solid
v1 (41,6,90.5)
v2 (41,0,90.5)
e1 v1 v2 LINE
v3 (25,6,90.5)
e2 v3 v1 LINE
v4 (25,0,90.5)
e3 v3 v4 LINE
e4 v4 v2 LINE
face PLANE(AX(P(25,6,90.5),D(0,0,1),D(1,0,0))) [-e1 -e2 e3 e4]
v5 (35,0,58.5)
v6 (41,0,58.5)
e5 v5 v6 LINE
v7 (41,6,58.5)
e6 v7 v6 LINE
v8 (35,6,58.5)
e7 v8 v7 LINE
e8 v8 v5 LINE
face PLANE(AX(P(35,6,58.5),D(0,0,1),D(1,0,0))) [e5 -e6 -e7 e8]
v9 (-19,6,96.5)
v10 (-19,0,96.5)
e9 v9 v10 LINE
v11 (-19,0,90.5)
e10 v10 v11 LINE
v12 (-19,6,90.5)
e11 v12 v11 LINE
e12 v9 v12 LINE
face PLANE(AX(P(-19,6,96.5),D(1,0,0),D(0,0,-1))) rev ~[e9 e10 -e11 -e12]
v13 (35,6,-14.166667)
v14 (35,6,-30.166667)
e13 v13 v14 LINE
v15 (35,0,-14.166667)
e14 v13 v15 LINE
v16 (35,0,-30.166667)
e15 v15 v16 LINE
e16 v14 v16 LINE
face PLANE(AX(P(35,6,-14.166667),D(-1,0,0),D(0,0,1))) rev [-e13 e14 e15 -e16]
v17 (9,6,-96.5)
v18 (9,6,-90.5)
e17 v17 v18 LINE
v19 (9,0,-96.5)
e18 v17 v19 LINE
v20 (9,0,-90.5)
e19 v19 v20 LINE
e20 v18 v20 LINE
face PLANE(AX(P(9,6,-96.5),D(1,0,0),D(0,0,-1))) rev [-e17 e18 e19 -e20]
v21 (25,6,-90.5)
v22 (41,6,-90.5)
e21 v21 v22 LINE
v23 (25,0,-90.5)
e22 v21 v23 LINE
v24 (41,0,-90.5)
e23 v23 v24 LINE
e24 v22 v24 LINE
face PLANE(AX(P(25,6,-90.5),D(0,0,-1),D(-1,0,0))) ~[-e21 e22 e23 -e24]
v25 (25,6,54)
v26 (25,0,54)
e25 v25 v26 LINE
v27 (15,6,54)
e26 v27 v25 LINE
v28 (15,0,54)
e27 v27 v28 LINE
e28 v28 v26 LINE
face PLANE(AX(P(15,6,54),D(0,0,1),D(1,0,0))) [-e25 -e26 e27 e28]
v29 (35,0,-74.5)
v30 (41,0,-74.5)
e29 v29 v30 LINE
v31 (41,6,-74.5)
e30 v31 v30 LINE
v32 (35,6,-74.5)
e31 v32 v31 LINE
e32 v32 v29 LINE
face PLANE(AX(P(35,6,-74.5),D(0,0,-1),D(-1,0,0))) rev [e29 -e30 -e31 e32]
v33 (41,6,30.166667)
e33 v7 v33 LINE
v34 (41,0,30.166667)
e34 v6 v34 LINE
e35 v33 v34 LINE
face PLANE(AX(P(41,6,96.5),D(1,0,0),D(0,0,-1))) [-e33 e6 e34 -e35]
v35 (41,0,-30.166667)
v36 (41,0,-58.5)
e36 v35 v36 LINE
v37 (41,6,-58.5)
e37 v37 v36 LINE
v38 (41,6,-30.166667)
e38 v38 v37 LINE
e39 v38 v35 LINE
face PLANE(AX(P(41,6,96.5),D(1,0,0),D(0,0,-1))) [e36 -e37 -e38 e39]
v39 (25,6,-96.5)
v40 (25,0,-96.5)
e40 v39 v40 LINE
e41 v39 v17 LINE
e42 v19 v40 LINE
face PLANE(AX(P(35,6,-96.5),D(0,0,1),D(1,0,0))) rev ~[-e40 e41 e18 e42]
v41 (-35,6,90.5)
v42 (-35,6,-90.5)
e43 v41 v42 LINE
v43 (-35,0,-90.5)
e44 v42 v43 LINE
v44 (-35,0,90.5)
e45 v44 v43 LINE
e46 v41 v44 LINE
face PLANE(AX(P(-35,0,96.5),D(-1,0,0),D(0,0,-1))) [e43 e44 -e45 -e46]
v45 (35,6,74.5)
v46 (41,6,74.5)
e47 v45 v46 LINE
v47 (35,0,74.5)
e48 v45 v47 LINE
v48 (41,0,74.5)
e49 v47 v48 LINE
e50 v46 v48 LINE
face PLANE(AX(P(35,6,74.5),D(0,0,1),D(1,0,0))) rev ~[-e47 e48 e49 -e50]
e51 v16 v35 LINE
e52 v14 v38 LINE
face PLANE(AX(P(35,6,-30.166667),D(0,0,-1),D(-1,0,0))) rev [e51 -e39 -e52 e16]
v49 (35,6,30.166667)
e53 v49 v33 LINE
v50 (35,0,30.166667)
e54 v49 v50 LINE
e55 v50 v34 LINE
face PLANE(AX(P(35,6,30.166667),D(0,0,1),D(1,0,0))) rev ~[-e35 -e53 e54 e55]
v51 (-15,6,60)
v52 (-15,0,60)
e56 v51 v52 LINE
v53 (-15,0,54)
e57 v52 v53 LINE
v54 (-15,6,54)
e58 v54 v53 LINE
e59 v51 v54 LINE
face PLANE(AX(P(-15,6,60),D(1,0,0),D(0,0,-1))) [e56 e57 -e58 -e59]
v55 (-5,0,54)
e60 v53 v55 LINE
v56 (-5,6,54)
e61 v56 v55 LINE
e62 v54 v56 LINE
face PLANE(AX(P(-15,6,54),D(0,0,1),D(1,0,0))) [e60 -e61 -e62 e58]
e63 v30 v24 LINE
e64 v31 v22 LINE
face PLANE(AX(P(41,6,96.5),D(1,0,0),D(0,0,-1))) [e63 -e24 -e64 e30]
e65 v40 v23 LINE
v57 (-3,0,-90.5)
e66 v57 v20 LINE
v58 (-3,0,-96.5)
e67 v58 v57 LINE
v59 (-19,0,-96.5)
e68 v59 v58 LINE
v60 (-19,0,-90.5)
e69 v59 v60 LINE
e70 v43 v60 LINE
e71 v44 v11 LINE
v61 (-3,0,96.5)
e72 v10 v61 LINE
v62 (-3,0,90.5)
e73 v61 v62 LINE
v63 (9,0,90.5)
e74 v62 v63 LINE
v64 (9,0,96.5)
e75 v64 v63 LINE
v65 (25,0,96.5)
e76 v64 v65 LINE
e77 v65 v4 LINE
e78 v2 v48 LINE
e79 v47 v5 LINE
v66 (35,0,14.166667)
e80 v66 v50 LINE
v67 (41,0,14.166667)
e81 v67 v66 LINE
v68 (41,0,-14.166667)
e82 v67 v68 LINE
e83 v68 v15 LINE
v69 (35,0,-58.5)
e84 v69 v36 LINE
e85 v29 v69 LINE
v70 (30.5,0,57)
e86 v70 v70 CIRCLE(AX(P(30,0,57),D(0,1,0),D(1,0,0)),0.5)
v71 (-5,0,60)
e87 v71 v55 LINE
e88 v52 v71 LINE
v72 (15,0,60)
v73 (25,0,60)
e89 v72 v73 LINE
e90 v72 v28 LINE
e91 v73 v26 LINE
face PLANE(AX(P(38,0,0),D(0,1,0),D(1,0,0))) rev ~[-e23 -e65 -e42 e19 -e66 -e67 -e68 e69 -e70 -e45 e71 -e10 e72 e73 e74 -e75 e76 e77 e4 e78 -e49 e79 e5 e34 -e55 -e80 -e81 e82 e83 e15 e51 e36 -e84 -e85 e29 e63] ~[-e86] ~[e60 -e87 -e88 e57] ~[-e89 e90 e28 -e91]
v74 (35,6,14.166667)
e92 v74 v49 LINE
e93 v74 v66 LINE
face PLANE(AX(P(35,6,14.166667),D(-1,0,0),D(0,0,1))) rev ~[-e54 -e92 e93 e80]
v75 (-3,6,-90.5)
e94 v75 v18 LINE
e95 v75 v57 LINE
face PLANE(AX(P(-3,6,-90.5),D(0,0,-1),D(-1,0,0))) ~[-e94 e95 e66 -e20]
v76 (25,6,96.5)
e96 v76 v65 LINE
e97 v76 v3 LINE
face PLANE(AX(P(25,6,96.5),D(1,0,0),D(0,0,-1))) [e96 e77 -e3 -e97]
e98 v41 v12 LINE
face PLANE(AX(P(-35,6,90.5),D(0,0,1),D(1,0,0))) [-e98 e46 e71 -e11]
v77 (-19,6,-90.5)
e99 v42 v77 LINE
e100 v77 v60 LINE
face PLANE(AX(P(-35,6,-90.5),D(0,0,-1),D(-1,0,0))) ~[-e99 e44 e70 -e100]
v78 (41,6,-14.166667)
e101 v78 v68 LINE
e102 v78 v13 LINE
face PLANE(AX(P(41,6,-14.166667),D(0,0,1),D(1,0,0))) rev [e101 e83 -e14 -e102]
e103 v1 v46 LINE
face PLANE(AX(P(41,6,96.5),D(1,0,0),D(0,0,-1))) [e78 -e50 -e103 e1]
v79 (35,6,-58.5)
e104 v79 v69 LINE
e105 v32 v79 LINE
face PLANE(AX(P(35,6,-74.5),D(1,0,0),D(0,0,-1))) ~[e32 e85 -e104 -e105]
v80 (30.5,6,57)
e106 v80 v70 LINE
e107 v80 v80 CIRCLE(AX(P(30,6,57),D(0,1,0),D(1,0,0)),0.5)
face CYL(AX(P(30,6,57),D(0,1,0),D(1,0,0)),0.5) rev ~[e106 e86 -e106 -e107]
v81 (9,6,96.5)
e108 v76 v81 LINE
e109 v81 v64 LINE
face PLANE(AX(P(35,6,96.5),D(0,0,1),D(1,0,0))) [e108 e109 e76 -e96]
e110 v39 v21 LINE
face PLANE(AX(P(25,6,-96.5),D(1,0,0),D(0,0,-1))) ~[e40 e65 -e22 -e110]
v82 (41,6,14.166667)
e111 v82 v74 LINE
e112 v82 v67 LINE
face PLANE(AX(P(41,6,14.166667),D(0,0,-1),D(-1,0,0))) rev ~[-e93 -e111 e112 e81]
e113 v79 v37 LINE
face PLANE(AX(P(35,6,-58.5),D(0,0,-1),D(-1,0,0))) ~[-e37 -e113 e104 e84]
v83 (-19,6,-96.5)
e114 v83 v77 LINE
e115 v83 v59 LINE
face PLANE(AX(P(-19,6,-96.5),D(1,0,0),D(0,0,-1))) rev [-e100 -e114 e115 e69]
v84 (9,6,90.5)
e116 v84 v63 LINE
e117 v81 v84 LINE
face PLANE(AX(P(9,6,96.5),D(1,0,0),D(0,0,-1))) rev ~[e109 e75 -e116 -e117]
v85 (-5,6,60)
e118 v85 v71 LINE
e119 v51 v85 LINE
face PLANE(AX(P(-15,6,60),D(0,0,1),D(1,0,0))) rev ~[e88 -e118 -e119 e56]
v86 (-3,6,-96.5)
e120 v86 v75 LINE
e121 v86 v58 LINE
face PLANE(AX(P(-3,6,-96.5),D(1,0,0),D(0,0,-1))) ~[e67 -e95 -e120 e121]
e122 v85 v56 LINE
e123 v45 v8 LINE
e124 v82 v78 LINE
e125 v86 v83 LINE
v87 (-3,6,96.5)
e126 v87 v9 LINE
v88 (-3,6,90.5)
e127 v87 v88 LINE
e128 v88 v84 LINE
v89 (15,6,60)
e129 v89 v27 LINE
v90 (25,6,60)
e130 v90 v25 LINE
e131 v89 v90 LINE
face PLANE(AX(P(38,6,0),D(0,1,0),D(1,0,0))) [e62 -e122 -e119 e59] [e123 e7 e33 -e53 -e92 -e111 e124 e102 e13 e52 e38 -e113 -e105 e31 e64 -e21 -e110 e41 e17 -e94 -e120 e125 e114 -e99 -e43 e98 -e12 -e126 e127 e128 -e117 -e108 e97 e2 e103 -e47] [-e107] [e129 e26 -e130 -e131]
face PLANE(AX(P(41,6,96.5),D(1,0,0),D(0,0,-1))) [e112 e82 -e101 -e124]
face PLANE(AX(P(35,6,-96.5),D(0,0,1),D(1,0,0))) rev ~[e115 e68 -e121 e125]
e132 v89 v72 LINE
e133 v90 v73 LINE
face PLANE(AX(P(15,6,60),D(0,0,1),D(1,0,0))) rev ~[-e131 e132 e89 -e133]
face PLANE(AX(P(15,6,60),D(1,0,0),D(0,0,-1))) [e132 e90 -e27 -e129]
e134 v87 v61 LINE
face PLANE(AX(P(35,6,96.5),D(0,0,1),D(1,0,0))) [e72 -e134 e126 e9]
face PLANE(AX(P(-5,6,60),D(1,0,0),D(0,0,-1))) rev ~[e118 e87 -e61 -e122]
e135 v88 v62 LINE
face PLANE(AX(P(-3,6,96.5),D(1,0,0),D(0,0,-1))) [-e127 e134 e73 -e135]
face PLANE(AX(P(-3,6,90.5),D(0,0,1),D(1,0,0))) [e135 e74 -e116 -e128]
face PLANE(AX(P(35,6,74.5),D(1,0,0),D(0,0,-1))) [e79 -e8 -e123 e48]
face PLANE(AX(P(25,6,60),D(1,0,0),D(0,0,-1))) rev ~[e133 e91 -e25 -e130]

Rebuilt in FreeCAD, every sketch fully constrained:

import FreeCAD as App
import Part
import Sketcher
from FreeCAD import Vector

doc = App.newDocument("Part")
body = doc.addObject("PartDesign::Body", "Body")

# Sketch on XZ plane
sketch1 = doc.addObject("Sketcher::SketchObject", "Sketch")
body.addObject(sketch1)
sketch1.AttachmentSupport = (doc.XZ_Plane, [""])
sketch1.MapMode = "FlatFace"
sketch1.addGeometry(Part.LineSegment(Vector(35, 96, 0), Vector(35, -96, 0)), False)
sketch1.addGeometry(Part.LineSegment(Vector(35, -96, 0), Vector(-35, -96, 0)), False)
sketch1.addGeometry(Part.LineSegment(Vector(-35, -96, 0), Vector(-35, 96, 0)), False)
sketch1.addGeometry(Part.LineSegment(Vector(-35, 96, 0), Vector(35, 96, 0)), False)
sketch1.addConstraint(Sketcher.Constraint("Coincident", 0, 2, 1, 1))
sketch1.addConstraint(Sketcher.Constraint("Coincident", 1, 2, 2, 1))
sketch1.addConstraint(Sketcher.Constraint("Coincident", 2, 2, 3, 1))
sketch1.addConstraint(Sketcher.Constraint("Coincident", 3, 2, 0, 1))
sketch1.addConstraint(Sketcher.Constraint("Vertical", 0))
sketch1.addConstraint(Sketcher.Constraint("Horizontal", 1))
sketch1.addConstraint(Sketcher.Constraint("Vertical", 2))
sketch1.addConstraint(Sketcher.Constraint("Horizontal", 3))
sketch1.addConstraint(Sketcher.Constraint("Symmetric", 0, 2, 2, 2, -1, 1))
sketch1.addConstraint(Sketcher.Constraint("DistanceX", 1, 2, 1, 1, 70.0))
sketch1.addConstraint(Sketcher.Constraint("DistanceY", 0, 2, 0, 1, 193.0))
pad1 = doc.addObject("PartDesign::Pad", "Pad")
body.addObject(pad1)
pad1.Profile = sketch1
pad1.Length = 6
pad1.Reversed = True

# Sketch on XZ plane
sketch2 = doc.addObject("Sketcher::SketchObject", "Sketch001")
body.addObject(sketch2)
sketch2.AttachmentSupport = (doc.XZ_Plane, [""])
sketch2.MapMode = "FlatFace"
sketch2.AttachmentOffset = App.Placement(Vector(0, 0, -6), App.Rotation())
sketch2.addGeometry(Part.LineSegment(Vector(35, -96, 0), Vector(35, 96, 0)), False)
sketch2.addGeometry(Part.LineSegment(Vector(35, 96, 0), Vector(41, 96, 0)), False)
sketch2.addGeometry(Part.LineSegment(Vector(41, 96, 0), Vector(41, -96, 0)), False)
sketch2.addGeometry(Part.LineSegment(Vector(41, -96, 0), Vector(35, -96, 0)), False)
sketch2.addConstraint(Sketcher.Constraint("Coincident", 0, 2, 1, 1))
sketch2.addConstraint(Sketcher.Constraint("Coincident", 1, 2, 2, 1))
sketch2.addConstraint(Sketcher.Constraint("Coincident", 2, 2, 3, 1))
sketch2.addConstraint(Sketcher.Constraint("Coincident", 3, 2, 0, 1))
sketch2.addConstraint(Sketcher.Constraint("Vertical", 0))
sketch2.addConstraint(Sketcher.Constraint("Horizontal", 1))
sketch2.addConstraint(Sketcher.Constraint("Vertical", 2))
sketch2.addConstraint(Sketcher.Constraint("Horizontal", 3))
sketch2.addConstraint(Sketcher.Constraint("DistanceX", 1, 1, 1, 2, 6.0))
sketch2.addConstraint(Sketcher.Constraint("DistanceY", 0, 1, 0, 2, 193.0))
sketch2.addConstraint(Sketcher.Constraint("DistanceX", -1, 1, 0, 2, 35.0))
sketch2.addConstraint(Sketcher.Constraint("DistanceY", -1, 1, 0, 2, 96.5))
pad2 = doc.addObject("PartDesign::Pad", "Pad001")
body.addObject(pad2)
pad2.Profile = sketch2
pad2.Length = 6

# Sketch on XZ plane
sketch3 = doc.addObject("Sketcher::SketchObject", "Sketch002")
body.addObject(sketch3)
sketch3.AttachmentSupport = (doc.XZ_Plane, [""])
sketch3.MapMode = "FlatFace"
sketch3.AttachmentOffset = App.Placement(Vector(0, 0, -6), App.Rotation())
sketch3.addGeometry(Part.LineSegment(Vector(35, 58, 0), Vector(35, 74, 0)), False)
sketch3.addGeometry(Part.LineSegment(Vector(35, 74, 0), Vector(41, 74, 0)), False)
sketch3.addGeometry(Part.LineSegment(Vector(41, 74, 0), Vector(41, 58, 0)), False)
sketch3.addGeometry(Part.LineSegment(Vector(41, 58, 0), Vector(35, 58, 0)), False)
sketch3.addGeometry(Part.LineSegment(Vector(35, 30, 0), Vector(41, 30, 0)), False)
sketch3.addGeometry(Part.LineSegment(Vector(41, 30, 0), Vector(41, 14, 0)), False)
sketch3.addGeometry(Part.LineSegment(Vector(41, 14, 0), Vector(35, 14, 0)), False)
sketch3.addGeometry(Part.LineSegment(Vector(35, 14, 0), Vector(35, 30, 0)), False)
sketch3.addGeometry(Part.LineSegment(Vector(25, 90, 0), Vector(25, 96, 0)), False)
sketch3.addGeometry(Part.LineSegment(Vector(25, 96, 0), Vector(41, 96, 0)), False)
sketch3.addGeometry(Part.LineSegment(Vector(41, 96, 0), Vector(41, 90, 0)), False)
sketch3.addGeometry(Part.LineSegment(Vector(41, 90, 0), Vector(25, 90, 0)), False)
sketch3.addGeometry(Part.LineSegment(Vector(-35, 90, 0), Vector(-35, 96, 0)), False)
sketch3.addGeometry(Part.LineSegment(Vector(-35, 96, 0), Vector(-19, 96, 0)), False)
sketch3.addGeometry(Part.LineSegment(Vector(-19, 96, 0), Vector(-19, 90, 0)), False)
sketch3.addGeometry(Part.LineSegment(Vector(-19, 90, 0), Vector(-35, 90, 0)), False)
sketch3.addGeometry(Part.LineSegment(Vector(-3, 90, 0), Vector(-3, 96, 0)), False)
sketch3.addGeometry(Part.LineSegment(Vector(-3, 96, 0), Vector(9, 96, 0)), False)
sketch3.addGeometry(Part.LineSegment(Vector(9, 96, 0), Vector(9, 90, 0)), False)
sketch3.addGeometry(Part.LineSegment(Vector(9, 90, 0), Vector(-3, 90, 0)), False)
sketch3.addConstraint(Sketcher.Constraint("Coincident", 0, 2, 1, 1))
sketch3.addConstraint(Sketcher.Constraint("Coincident", 1, 2, 2, 1))
sketch3.addConstraint(Sketcher.Constraint("Coincident", 2, 2, 3, 1))
sketch3.addConstraint(Sketcher.Constraint("Coincident", 3, 2, 0, 1))
sketch3.addConstraint(Sketcher.Constraint("Coincident", 4, 2, 5, 1))
sketch3.addConstraint(Sketcher.Constraint("Coincident", 5, 2, 6, 1))
sketch3.addConstraint(Sketcher.Constraint("Coincident", 6, 2, 7, 1))
sketch3.addConstraint(Sketcher.Constraint("Coincident", 7, 2, 4, 1))
sketch3.addConstraint(Sketcher.Constraint("Coincident", 8, 2, 9, 1))
sketch3.addConstraint(Sketcher.Constraint("Coincident", 9, 2, 10, 1))
sketch3.addConstraint(Sketcher.Constraint("Coincident", 10, 2, 11, 1))
sketch3.addConstraint(Sketcher.Constraint("Coincident", 11, 2, 8, 1))
sketch3.addConstraint(Sketcher.Constraint("Coincident", 12, 2, 13, 1))
sketch3.addConstraint(Sketcher.Constraint("Coincident", 13, 2, 14, 1))
sketch3.addConstraint(Sketcher.Constraint("Coincident", 14, 2, 15, 1))
sketch3.addConstraint(Sketcher.Constraint("Coincident", 15, 2, 12, 1))
sketch3.addConstraint(Sketcher.Constraint("Coincident", 16, 2, 17, 1))
sketch3.addConstraint(Sketcher.Constraint("Coincident", 17, 2, 18, 1))
sketch3.addConstraint(Sketcher.Constraint("Coincident", 18, 2, 19, 1))
sketch3.addConstraint(Sketcher.Constraint("Coincident", 19, 2, 16, 1))
sketch3.addConstraint(Sketcher.Constraint("Vertical", 0))
sketch3.addConstraint(Sketcher.Constraint("Horizontal", 1))
sketch3.addConstraint(Sketcher.Constraint("Vertical", 2))
sketch3.addConstraint(Sketcher.Constraint("Horizontal", 3))
sketch3.addConstraint(Sketcher.Constraint("Horizontal", 4))
sketch3.addConstraint(Sketcher.Constraint("Vertical", 5))
sketch3.addConstraint(Sketcher.Constraint("Horizontal", 6))
sketch3.addConstraint(Sketcher.Constraint("Vertical", 7))
sketch3.addConstraint(Sketcher.Constraint("Vertical", 8))
sketch3.addConstraint(Sketcher.Constraint("Horizontal", 9))
sketch3.addConstraint(Sketcher.Constraint("Vertical", 10))
sketch3.addConstraint(Sketcher.Constraint("Horizontal", 11))
sketch3.addConstraint(Sketcher.Constraint("Vertical", 12))
sketch3.addConstraint(Sketcher.Constraint("Horizontal", 13))
sketch3.addConstraint(Sketcher.Constraint("Vertical", 14))
sketch3.addConstraint(Sketcher.Constraint("Horizontal", 15))
sketch3.addConstraint(Sketcher.Constraint("Vertical", 16))
sketch3.addConstraint(Sketcher.Constraint("Horizontal", 17))
sketch3.addConstraint(Sketcher.Constraint("Vertical", 18))
sketch3.addConstraint(Sketcher.Constraint("Horizontal", 19))
sketch3.addConstraint(Sketcher.Constraint("Horizontal", 9, 2, 12, 2))
sketch3.addConstraint(Sketcher.Constraint("Horizontal", 11, 2, 14, 2))
sketch3.addConstraint(Sketcher.Constraint("Horizontal", 13, 2, 16, 2))
sketch3.addConstraint(Sketcher.Constraint("Horizontal", 15, 2, 18, 2))
sketch3.addConstraint(Sketcher.Constraint("Vertical", 2, 2, 4, 2))
sketch3.addConstraint(Sketcher.Constraint("Vertical", 3, 2, 6, 2))
sketch3.addConstraint(Sketcher.Constraint("Vertical", 5, 2, 9, 2))
sketch3.addConstraint(Sketcher.Constraint("Equal", 11, 13))
sketch3.addConstraint(Sketcher.Constraint("Equal", 15, 0))
sketch3.addConstraint(Sketcher.Constraint("Equal", 2, 5))
sketch3.addConstraint(Sketcher.Constraint("Equal", 6, 8))
sketch3.addConstraint(Sketcher.Constraint("DistanceX", 1, 1, 1, 2, 6.0))
sketch3.addConstraint(Sketcher.Constraint("DistanceX", 9, 1, 9, 2, 16.0))
sketch3.addConstraint(Sketcher.Constraint("DistanceX", 17, 1, 17, 2, 12.0))
sketch3.addConstraint(Sketcher.Constraint("DistanceX", -1, 1, 0, 2, 35.0))
sketch3.addConstraint(Sketcher.Constraint("DistanceX", 12, 2, -1, 1, 35.0))
sketch3.addConstraint(Sketcher.Constraint("DistanceX", 16, 2, -1, 1, 3.0))
sketch3.addConstraint(Sketcher.Constraint("DistanceY", 0, 2, 8, 2, 22.0))
sketch3.addConstraint(Sketcher.Constraint("DistanceY", -1, 1, 0, 2, 74.5))
sketch3.addConstraint(Sketcher.Constraint("DistanceY", -1, 1, 4, 2, 30.166667))
pocket1 = doc.addObject("PartDesign::Pocket", "Pocket")
body.addObject(pocket1)
pocket1.Profile = sketch3
pocket1.Type = "ThroughAll"
pocket1.Reversed = True
doc.recompute()

mirrored = doc.addObject("PartDesign::Mirrored", "Mirrored")
body.addObject(mirrored)
mirrored.Originals = [pocket1]
mirrored.MirrorPlane = (doc.XY_Plane, [""])
body.Tip = mirrored

# Sketch on XZ plane
sketch4 = doc.addObject("Sketcher::SketchObject", "Sketch003")
body.addObject(sketch4)
sketch4.AttachmentSupport = (doc.XZ_Plane, [""])
sketch4.MapMode = "FlatFace"
sketch4.AttachmentOffset = App.Placement(Vector(0, 0, -6), App.Rotation())
sketch4.addGeometry(Part.Circle(Vector(30, 57, 0), Vector(0, 0, 1), 0.5), False)
sketch4.addGeometry(Part.LineSegment(Vector(15, 54, 0), Vector(15, 60, 0)), False)
sketch4.addGeometry(Part.LineSegment(Vector(15, 60, 0), Vector(25, 60, 0)), False)
sketch4.addGeometry(Part.LineSegment(Vector(25, 60, 0), Vector(25, 54, 0)), False)
sketch4.addGeometry(Part.LineSegment(Vector(25, 54, 0), Vector(15, 54, 0)), False)
sketch4.addGeometry(Part.LineSegment(Vector(-15, 54, 0), Vector(-15, 60, 0)), False)
sketch4.addGeometry(Part.LineSegment(Vector(-15, 60, 0), Vector(-5, 60, 0)), False)
sketch4.addGeometry(Part.LineSegment(Vector(-5, 60, 0), Vector(-5, 54, 0)), False)
sketch4.addGeometry(Part.LineSegment(Vector(-5, 54, 0), Vector(-15, 54, 0)), False)
sketch4.addConstraint(Sketcher.Constraint("Coincident", 1, 2, 2, 1))
sketch4.addConstraint(Sketcher.Constraint("Coincident", 2, 2, 3, 1))
sketch4.addConstraint(Sketcher.Constraint("Coincident", 3, 2, 4, 1))
sketch4.addConstraint(Sketcher.Constraint("Coincident", 4, 2, 1, 1))
sketch4.addConstraint(Sketcher.Constraint("Coincident", 5, 2, 6, 1))
sketch4.addConstraint(Sketcher.Constraint("Coincident", 6, 2, 7, 1))
sketch4.addConstraint(Sketcher.Constraint("Coincident", 7, 2, 8, 1))
sketch4.addConstraint(Sketcher.Constraint("Coincident", 8, 2, 5, 1))
sketch4.addConstraint(Sketcher.Constraint("Vertical", 1))
sketch4.addConstraint(Sketcher.Constraint("Horizontal", 2))
sketch4.addConstraint(Sketcher.Constraint("Vertical", 3))
sketch4.addConstraint(Sketcher.Constraint("Horizontal", 4))
sketch4.addConstraint(Sketcher.Constraint("Vertical", 5))
sketch4.addConstraint(Sketcher.Constraint("Horizontal", 6))
sketch4.addConstraint(Sketcher.Constraint("Vertical", 7))
sketch4.addConstraint(Sketcher.Constraint("Horizontal", 8))
sketch4.addConstraint(Sketcher.Constraint("Symmetric", 1, 2, 5, 2, -2))
sketch4.addConstraint(Sketcher.Constraint("Horizontal", 4, 2, 7, 2))
sketch4.addConstraint(Sketcher.Constraint("Equal", 4, 6))
sketch4.addConstraint(Sketcher.Constraint("Diameter", 0, 1.0))
sketch4.addConstraint(Sketcher.Constraint("DistanceX", 2, 1, 2, 2, 10.0))
sketch4.addConstraint(Sketcher.Constraint("DistanceY", 1, 1, 1, 2, 6.0))
sketch4.addConstraint(Sketcher.Constraint("DistanceX", -1, 1, 0, 3, 30.0))
sketch4.addConstraint(Sketcher.Constraint("DistanceY", -1, 1, 0, 3, 57.0))
sketch4.addConstraint(Sketcher.Constraint("DistanceX", -1, 1, 1, 2, 15.0))
sketch4.addConstraint(Sketcher.Constraint("DistanceY", -1, 1, 1, 2, 60.0))
pocket2 = doc.addObject("PartDesign::Pocket", "Pocket001")
body.addObject(pocket2)
pocket2.Profile = sketch4
pocket2.Type = "ThroughAll"
pocket2.Reversed = True

doc.recompute()
